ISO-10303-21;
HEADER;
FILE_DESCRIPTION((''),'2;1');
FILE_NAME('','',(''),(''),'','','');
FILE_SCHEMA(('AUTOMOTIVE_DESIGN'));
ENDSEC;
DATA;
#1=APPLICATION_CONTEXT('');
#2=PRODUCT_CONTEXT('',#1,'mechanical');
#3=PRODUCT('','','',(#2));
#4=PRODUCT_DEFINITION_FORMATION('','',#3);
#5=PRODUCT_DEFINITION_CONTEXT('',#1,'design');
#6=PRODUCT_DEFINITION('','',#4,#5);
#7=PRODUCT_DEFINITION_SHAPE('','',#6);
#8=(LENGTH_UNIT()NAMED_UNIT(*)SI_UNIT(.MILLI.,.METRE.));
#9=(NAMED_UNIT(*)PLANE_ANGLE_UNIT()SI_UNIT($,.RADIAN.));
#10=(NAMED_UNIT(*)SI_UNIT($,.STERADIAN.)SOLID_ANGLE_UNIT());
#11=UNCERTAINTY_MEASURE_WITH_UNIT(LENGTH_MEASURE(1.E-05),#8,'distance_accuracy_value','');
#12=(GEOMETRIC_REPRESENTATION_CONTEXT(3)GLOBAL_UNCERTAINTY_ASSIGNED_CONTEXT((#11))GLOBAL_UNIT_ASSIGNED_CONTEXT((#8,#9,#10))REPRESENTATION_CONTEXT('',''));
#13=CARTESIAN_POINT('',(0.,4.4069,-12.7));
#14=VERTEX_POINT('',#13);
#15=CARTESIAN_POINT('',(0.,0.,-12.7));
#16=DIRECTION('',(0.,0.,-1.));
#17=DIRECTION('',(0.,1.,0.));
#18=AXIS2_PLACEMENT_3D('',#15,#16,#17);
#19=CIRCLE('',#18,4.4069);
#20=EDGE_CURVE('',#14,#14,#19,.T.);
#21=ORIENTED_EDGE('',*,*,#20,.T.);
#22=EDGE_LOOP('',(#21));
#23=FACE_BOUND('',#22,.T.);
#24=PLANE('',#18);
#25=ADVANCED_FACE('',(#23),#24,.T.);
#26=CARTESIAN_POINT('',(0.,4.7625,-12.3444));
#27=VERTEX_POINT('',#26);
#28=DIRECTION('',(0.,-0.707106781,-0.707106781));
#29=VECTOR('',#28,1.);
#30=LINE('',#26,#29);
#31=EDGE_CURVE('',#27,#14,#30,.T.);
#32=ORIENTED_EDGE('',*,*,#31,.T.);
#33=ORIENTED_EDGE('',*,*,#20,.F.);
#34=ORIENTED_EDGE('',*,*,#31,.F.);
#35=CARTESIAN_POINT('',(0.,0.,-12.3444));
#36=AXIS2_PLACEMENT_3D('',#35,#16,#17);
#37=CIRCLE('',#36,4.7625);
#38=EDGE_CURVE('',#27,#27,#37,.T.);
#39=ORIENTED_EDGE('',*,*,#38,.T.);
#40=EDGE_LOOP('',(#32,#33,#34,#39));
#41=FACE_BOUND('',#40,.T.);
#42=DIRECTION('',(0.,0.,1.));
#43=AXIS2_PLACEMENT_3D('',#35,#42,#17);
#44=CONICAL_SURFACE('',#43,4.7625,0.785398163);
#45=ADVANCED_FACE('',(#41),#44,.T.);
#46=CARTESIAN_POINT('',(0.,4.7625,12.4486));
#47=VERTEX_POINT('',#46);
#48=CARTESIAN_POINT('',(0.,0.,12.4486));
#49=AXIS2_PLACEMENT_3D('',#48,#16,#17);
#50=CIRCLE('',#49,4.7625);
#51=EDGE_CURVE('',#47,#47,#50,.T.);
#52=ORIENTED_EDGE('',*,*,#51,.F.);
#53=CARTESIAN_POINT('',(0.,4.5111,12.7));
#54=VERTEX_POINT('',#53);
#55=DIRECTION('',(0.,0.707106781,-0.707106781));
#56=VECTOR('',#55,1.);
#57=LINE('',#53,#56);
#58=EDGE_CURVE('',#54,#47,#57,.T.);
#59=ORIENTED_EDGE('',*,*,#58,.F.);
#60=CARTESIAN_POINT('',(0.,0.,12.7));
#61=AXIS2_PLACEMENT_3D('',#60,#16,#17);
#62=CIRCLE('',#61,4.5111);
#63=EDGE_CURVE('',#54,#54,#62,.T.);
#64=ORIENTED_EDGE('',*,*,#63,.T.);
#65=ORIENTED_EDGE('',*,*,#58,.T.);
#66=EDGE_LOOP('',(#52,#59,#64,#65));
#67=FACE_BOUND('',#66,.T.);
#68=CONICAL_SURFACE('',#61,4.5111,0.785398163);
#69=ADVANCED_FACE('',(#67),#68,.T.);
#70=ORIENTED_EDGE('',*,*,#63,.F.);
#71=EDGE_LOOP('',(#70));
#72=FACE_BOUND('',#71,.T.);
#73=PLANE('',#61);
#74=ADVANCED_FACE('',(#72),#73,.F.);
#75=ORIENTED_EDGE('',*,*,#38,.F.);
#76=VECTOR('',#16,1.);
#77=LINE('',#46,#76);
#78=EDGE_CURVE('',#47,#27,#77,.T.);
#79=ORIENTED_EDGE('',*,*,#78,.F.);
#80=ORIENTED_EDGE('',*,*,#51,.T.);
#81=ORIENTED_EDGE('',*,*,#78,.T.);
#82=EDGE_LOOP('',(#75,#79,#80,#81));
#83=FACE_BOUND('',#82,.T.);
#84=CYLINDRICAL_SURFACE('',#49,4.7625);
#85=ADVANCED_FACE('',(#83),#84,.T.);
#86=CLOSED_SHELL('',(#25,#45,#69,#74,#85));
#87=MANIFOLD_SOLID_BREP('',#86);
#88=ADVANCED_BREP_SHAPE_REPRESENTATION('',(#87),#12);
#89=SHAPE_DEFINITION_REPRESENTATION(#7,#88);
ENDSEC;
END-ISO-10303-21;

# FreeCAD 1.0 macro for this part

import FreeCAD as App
import Part
import Sketcher

V = App.Vector
Q = App.Units.Quantity


def add_polygon(sketch, points):
    """Adds a closed chain of lines whose ends are joined by coincident constraints."""
    first, n = sketch.GeometryCount, len(points)
    for a, b in zip(points, points[1:] + points[:1]):
        sketch.addGeometry(Part.LineSegment(App.Vector(*a, 0), App.Vector(*b, 0)), False)
    for i in range(n):
        sketch.addConstraint(Sketcher.Constraint("Coincident", first + i, 2, first + (i + 1) % n, 1))

doc = App.newDocument("Part")
params = doc.addObject("Spreadsheet::Sheet", "Params")
for row, (alias, value) in enumerate([
    ("sketch1_height", "1 in"),
    ("sketch1_length", "0.014 in"),
    ("revolution_angle", "360 deg"),
], start=1):
    params.set(f"A{row}", alias)
    params.set(f"B{row}", "=" + value)
    params.setAlias(f"B{row}", alias)

body = doc.addObject("PartDesign::Body", "Body")

# Sketch on YZ plane
sketch1 = body.newObject("Sketcher::SketchObject", "Sketch")
sketch1.AttachmentSupport = (doc.getObject("YZ_Plane"), [""])
sketch1.MapMode = "FlatFace"
add_polygon(sketch1, [(0, 12.7), (0, -12.7), (4.41, -12.7), (4.76, -12.34), (4.76, 12.45), (4.51, 12.7)])  # lines 0-5
sketch1.addConstraint([
    Sketcher.Constraint("Vertical", 0),
    Sketcher.Constraint("Horizontal", 1),
    Sketcher.Constraint("Vertical", 3),
    Sketcher.Constraint("Horizontal", 5),
    Sketcher.Constraint("Symmetric", 0, 2, 5, 2, -1, 1),
    Sketcher.Constraint("Perpendicular", 2, 4),
    Sketcher.Constraint("DistanceY", 0, 2, 0, 1, Q("1 in")),
    Sketcher.Constraint("Angle", 2, Q("45 deg")),
    Sketcher.Constraint("Distance", 4, Q("0.014 in")),
    Sketcher.Constraint("DistanceX", 1, 1, 1, 2, Q("0.1735 in")),
    Sketcher.Constraint("DistanceX", 5, 2, 5, 1, Q("0.1776 in")),
])
sketch1.setExpression("Constraints[12]", "Params.sketch1_height")
sketch1.setExpression("Constraints[14]", "Params.sketch1_length")
revolution = body.newObject("PartDesign::Revolution", "Revolution")
revolution.Profile = sketch1
revolution.ReferenceAxis = (sketch1, ["V_Axis"])
revolution.setExpression("Angle", "Params.revolution_angle")

doc.recompute()
